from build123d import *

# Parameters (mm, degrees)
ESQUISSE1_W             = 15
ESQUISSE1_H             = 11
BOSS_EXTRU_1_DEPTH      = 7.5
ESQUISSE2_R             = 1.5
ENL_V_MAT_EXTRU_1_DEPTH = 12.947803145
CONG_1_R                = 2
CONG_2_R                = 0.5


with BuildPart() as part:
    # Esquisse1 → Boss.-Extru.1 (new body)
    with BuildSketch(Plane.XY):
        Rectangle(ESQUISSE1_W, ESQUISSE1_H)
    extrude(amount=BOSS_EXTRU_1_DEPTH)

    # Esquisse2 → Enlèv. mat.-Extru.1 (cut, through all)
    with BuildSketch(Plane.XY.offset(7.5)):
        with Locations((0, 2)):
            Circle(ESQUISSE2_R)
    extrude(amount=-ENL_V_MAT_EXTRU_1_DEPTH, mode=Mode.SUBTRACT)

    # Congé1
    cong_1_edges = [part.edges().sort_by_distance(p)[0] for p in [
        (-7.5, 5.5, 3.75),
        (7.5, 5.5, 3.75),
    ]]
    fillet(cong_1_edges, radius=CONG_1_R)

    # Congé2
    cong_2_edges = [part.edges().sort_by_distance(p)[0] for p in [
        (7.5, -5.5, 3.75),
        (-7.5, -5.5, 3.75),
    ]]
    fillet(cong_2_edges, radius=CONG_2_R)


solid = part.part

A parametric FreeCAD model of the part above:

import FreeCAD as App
import Part
import Sketcher
from FreeCAD import Vector


def edges_at(feature, points):
    """Names of the edges that pass closest to the given points."""
    edges = feature.Shape.Edges
    near = lambda p: min(range(len(edges)), key=lambda i: edges[i].distToShape(Part.Vertex(*p))[0])
    return sorted({f"Edge{near(p) + 1}" for p in points})


def add_polygon(sketch, points):
    """Adds a closed chain of lines whose ends are joined by coincident constraints."""
    first, n = sketch.GeometryCount, len(points)
    for a, b in zip(points, points[1:] + points[:1]):
        sketch.addGeometry(Part.LineSegment(App.Vector(*a, 0), App.Vector(*b, 0)), False)
    for i in range(n):
        sketch.addConstraint(Sketcher.Constraint("Coincident", first + i, 2, first + (i + 1) % n, 1))

doc = App.newDocument("Part")
body = doc.addObject("PartDesign::Body", "Body")

# Sketch on XY plane
sketch1 = body.newObject("Sketcher::SketchObject", "Sketch")
sketch1.AttachmentSupport = (doc.getObject("XY_Plane"), [""])
sketch1.MapMode = "FlatFace"
add_polygon(sketch1, [(-8, 6), (-8, -6), (8, -6), (8, 6)])  # lines 0-3
sketch1.addConstraint([
    Sketcher.Constraint("Vertical", 0),
    Sketcher.Constraint("Horizontal", 1),
    Sketcher.Constraint("Vertical", 2),
    Sketcher.Constraint("Horizontal", 3),
    Sketcher.Constraint("Symmetric", 0, 2, 2, 2, -1, 1),
    Sketcher.Constraint("DistanceX", 1, 1, 1, 2, 15.0),
    Sketcher.Constraint("DistanceY", 0, 2, 0, 1, 11.0),
])
pad1 = body.newObject("PartDesign::Pad", "Pad")
pad1.Profile = sketch1
pad1.Length = 7.5

# Sketch on XY plane
sketch2 = body.newObject("Sketcher::SketchObject", "Sketch001")
sketch2.AttachmentSupport = (doc.getObject("XY_Plane"), [""])
sketch2.MapMode = "FlatFace"
sketch2.AttachmentOffset = App.Placement(Vector(0, 0, 7.5), App.Rotation())
sketch2.addGeometry(Part.Circle(Vector(0, 2, 0), Vector(0, 0, 1), 1.5), False)
sketch2.addConstraint([
    Sketcher.Constraint("PointOnObject", 0, 3, -2),
    Sketcher.Constraint("Diameter", 0, 3.0),
    Sketcher.Constraint("DistanceY", -1, 1, 0, 3, 2.0),
])
pocket1 = body.newObject("PartDesign::Pocket", "Pocket")
pocket1.Profile = sketch2
pocket1.Type = "ThroughAll"
doc.recompute()

fillet = body.newObject("PartDesign::Fillet", "Fillet")
fillet.Base = (pocket1, edges_at(pocket1, [(-7.5, 5.5, 3.75), (7.5, 5.5, 3.75)]))
fillet.Radius = 2
doc.recompute()

fillet2 = body.newObject("PartDesign::Fillet", "Fillet001")
fillet2.Base = (fillet, edges_at(fillet, [(7.5, -5.5, 3.75), (-7.5, -5.5, 3.75)]))
fillet2.Radius = 0.5

doc.recompute()
